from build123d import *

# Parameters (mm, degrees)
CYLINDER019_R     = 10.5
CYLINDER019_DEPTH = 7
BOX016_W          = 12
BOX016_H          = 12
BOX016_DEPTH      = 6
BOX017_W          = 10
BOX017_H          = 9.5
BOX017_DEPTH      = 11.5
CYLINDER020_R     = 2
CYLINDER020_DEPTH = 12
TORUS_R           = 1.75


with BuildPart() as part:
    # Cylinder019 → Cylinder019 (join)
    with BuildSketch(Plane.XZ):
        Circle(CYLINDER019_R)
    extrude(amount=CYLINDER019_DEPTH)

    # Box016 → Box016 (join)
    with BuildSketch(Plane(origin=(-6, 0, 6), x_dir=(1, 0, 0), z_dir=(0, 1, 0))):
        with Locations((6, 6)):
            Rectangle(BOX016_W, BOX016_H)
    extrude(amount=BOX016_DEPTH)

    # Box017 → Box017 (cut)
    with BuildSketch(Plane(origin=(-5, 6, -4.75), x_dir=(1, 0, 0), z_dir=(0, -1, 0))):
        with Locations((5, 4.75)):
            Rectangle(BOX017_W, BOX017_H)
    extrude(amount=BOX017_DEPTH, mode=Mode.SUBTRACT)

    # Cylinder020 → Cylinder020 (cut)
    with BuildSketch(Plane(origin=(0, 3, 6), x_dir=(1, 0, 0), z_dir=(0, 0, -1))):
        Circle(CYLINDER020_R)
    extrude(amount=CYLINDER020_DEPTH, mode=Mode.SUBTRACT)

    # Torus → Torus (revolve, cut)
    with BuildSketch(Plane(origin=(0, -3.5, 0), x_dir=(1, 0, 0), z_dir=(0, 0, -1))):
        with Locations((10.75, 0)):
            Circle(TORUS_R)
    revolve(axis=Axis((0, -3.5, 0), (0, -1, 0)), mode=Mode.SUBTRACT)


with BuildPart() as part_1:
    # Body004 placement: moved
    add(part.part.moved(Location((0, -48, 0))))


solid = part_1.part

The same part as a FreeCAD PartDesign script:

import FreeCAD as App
import Part
import Sketcher

doc = App.newDocument("Part")
body = doc.addObject("PartDesign::Body", "Body")

# Sketch on XZ plane
sketch1 = body.newObject("Sketcher::SketchObject", "Sketch")
sketch1.AttachmentSupport = (doc.getObject("XZ_Plane"), [""])
sketch1.MapMode = "FlatFace"
sketch1.addGeometry(Part.Circle(App.Vector(0, 0, 0), App.Vector(0, 0, 1), 10.5), False)
sketch1.addConstraint(Sketcher.Constraint("Coincident", 0, 3, -1, 1))
sketch1.addConstraint(Sketcher.Constraint("Diameter", 0, 21.0))
pad1 = body.newObject("PartDesign::Pad", "Pad")
pad1.Profile = sketch1
pad1.Length = 7

# Sketch on XZ plane
sketch2 = body.newObject("Sketcher::SketchObject", "Sketch001")
sketch2.AttachmentSupport = (doc.getObject("XZ_Plane"), [""])
sketch2.MapMode = "FlatFace"
sketch2.addGeometry(Part.LineSegment(App.Vector(-6, -6, 0), App.Vector(-6, 6, 0)), False)
sketch2.addGeometry(Part.LineSegment(App.Vector(-6, 6, 0), App.Vector(6, 6, 0)), False)
sketch2.addGeometry(Part.LineSegment(App.Vector(6, 6, 0), App.Vector(6, -6, 0)), False)
sketch2.addGeometry(Part.LineSegment(App.Vector(6, -6, 0), App.Vector(-6, -6, 0)), False)
sketch2.addConstraint(Sketcher.Constraint("Coincident", 0, 2, 1, 1))
sketch2.addConstraint(Sketcher.Constraint("Coincident", 1, 2, 2, 1))
sketch2.addConstraint(Sketcher.Constraint("Coincident", 2, 2, 3, 1))
sketch2.addConstraint(Sketcher.Constraint("Coincident", 3, 2, 0, 1))
sketch2.addConstraint(Sketcher.Constraint("Vertical", 0))
sketch2.addConstraint(Sketcher.Constraint("Horizontal", 1))
sketch2.addConstraint(Sketcher.Constraint("Vertical", 2))
sketch2.addConstraint(Sketcher.Constraint("Horizontal", 3))
sketch2.addConstraint(Sketcher.Constraint("Symmetric", 0, 2, 2, 2, -1, 1))
sketch2.addConstraint(Sketcher.Constraint("Equal", 3, 0))
sketch2.addConstraint(Sketcher.Constraint("DistanceX", 1, 1, 1, 2, 12.0))
pad2 = body.newObject("PartDesign::Pad", "Pad001")
pad2.Profile = sketch2
pad2.Length = 6
pad2.Reversed = True

# Sketch on XZ plane
sketch3 = body.newObject("Sketcher::SketchObject", "Sketch002")
sketch3.AttachmentSupport = (doc.getObject("XZ_Plane"), [""])
sketch3.MapMode = "FlatFace"
sketch3.AttachmentOffset = App.Placement(App.Vector(0, 0, -6), App.Rotation())
sketch3.addGeometry(Part.LineSegment(App.Vector(-5, 4.75, 0), App.Vector(-5, -4.75, 0)), False)
sketch3.addGeometry(Part.LineSegment(App.Vector(-5, -4.75, 0), App.Vector(5, -4.75, 0)), False)
sketch3.addGeometry(Part.LineSegment(App.Vector(5, -4.75, 0), App.Vector(5, 4.75, 0)), False)
sketch3.addGeometry(Part.LineSegment(App.Vector(5, 4.75, 0), App.Vector(-5, 4.75, 0)), False)
sketch3.addConstraint(Sketcher.Constraint("Coincident", 0, 2, 1, 1))
sketch3.addConstraint(Sketcher.Constraint("Coincident", 1, 2, 2, 1))
sketch3.addConstraint(Sketcher.Constraint("Coincident", 2, 2, 3, 1))
sketch3.addConstraint(Sketcher.Constraint("Coincident", 3, 2, 0, 1))
sketch3.addConstraint(Sketcher.Constraint("Vertical", 0))
sketch3.addConstraint(Sketcher.Constraint("Horizontal", 1))
sketch3.addConstraint(Sketcher.Constraint("Vertical", 2))
sketch3.addConstraint(Sketcher.Constraint("Horizontal", 3))
sketch3.addConstraint(Sketcher.Constraint("Symmetric", 0, 2, 2, 2, -1, 1))
sketch3.addConstraint(Sketcher.Constraint("DistanceX", 1, 1, 1, 2, 10.0))
sketch3.addConstraint(Sketcher.Constraint("DistanceY", 0, 2, 0, 1, 9.5))
pocket1 = body.newObject("PartDesign::Pocket", "Pocket")
pocket1.Profile = sketch3
pocket1.Length = 11.5
pocket1.Reversed = True

# Sketch on XY plane
sketch4 = body.newObject("Sketcher::SketchObject", "Sketch003")
sketch4.AttachmentSupport = (doc.getObject("XY_Plane"), [""])
sketch4.MapMode = "FlatFace"
sketch4.AttachmentOffset = App.Placement(App.Vector(0, 0, 6), App.Rotation())
sketch4.addGeometry(Part.Circle(App.Vector(0, 3, 0), App.Vector(0, 0, 1), 2), False)
sketch4.addConstraint(Sketcher.Constraint("PointOnObject", 0, 3, -2))
sketch4.addConstraint(Sketcher.Constraint("Diameter", 0, 4.0))
sketch4.addConstraint(Sketcher.Constraint("DistanceY", -1, 1, 0, 3, 3.0))
pocket2 = body.newObject("PartDesign::Pocket", "Pocket001")
pocket2.Profile = sketch4
pocket2.Length = 12

# Sketch on XY plane
sketch5 = body.newObject("Sketcher::SketchObject", "Sketch004")
sketch5.AttachmentSupport = (doc.getObject("XY_Plane"), [""])
sketch5.MapMode = "FlatFace"
sketch5.addGeometry(Part.Circle(App.Vector(10.75, -3.5, 0), App.Vector(0, 0, 1), 1.75), False)
sketch5.addConstraint(Sketcher.Constraint("Diameter", 0, 3.5))
sketch5.addConstraint(Sketcher.Constraint("DistanceY", 0, 3, -1, 1, 3.5))
sketch5.addConstraint(Sketcher.Constraint("DistanceX", -1, 1, 0, 3, 10.75))
groove = body.newObject("PartDesign::Groove", "Groove")
groove.Profile = sketch5
groove.ReferenceAxis = (sketch5, ["V_Axis"])
groove.Angle = 360
body2 = doc.addObject("PartDesign::Body", "Body001")
doc.recompute()

body.Placement = App.Placement(App.Vector(0, -48, 0), App.Rotation(App.Vector(0, 0, 1), 0))
boolean = body2.newObject("PartDesign::Boolean", "Boolean")
boolean.Type = "Fuse"
boolean.addObjects([body])

doc.recompute()
